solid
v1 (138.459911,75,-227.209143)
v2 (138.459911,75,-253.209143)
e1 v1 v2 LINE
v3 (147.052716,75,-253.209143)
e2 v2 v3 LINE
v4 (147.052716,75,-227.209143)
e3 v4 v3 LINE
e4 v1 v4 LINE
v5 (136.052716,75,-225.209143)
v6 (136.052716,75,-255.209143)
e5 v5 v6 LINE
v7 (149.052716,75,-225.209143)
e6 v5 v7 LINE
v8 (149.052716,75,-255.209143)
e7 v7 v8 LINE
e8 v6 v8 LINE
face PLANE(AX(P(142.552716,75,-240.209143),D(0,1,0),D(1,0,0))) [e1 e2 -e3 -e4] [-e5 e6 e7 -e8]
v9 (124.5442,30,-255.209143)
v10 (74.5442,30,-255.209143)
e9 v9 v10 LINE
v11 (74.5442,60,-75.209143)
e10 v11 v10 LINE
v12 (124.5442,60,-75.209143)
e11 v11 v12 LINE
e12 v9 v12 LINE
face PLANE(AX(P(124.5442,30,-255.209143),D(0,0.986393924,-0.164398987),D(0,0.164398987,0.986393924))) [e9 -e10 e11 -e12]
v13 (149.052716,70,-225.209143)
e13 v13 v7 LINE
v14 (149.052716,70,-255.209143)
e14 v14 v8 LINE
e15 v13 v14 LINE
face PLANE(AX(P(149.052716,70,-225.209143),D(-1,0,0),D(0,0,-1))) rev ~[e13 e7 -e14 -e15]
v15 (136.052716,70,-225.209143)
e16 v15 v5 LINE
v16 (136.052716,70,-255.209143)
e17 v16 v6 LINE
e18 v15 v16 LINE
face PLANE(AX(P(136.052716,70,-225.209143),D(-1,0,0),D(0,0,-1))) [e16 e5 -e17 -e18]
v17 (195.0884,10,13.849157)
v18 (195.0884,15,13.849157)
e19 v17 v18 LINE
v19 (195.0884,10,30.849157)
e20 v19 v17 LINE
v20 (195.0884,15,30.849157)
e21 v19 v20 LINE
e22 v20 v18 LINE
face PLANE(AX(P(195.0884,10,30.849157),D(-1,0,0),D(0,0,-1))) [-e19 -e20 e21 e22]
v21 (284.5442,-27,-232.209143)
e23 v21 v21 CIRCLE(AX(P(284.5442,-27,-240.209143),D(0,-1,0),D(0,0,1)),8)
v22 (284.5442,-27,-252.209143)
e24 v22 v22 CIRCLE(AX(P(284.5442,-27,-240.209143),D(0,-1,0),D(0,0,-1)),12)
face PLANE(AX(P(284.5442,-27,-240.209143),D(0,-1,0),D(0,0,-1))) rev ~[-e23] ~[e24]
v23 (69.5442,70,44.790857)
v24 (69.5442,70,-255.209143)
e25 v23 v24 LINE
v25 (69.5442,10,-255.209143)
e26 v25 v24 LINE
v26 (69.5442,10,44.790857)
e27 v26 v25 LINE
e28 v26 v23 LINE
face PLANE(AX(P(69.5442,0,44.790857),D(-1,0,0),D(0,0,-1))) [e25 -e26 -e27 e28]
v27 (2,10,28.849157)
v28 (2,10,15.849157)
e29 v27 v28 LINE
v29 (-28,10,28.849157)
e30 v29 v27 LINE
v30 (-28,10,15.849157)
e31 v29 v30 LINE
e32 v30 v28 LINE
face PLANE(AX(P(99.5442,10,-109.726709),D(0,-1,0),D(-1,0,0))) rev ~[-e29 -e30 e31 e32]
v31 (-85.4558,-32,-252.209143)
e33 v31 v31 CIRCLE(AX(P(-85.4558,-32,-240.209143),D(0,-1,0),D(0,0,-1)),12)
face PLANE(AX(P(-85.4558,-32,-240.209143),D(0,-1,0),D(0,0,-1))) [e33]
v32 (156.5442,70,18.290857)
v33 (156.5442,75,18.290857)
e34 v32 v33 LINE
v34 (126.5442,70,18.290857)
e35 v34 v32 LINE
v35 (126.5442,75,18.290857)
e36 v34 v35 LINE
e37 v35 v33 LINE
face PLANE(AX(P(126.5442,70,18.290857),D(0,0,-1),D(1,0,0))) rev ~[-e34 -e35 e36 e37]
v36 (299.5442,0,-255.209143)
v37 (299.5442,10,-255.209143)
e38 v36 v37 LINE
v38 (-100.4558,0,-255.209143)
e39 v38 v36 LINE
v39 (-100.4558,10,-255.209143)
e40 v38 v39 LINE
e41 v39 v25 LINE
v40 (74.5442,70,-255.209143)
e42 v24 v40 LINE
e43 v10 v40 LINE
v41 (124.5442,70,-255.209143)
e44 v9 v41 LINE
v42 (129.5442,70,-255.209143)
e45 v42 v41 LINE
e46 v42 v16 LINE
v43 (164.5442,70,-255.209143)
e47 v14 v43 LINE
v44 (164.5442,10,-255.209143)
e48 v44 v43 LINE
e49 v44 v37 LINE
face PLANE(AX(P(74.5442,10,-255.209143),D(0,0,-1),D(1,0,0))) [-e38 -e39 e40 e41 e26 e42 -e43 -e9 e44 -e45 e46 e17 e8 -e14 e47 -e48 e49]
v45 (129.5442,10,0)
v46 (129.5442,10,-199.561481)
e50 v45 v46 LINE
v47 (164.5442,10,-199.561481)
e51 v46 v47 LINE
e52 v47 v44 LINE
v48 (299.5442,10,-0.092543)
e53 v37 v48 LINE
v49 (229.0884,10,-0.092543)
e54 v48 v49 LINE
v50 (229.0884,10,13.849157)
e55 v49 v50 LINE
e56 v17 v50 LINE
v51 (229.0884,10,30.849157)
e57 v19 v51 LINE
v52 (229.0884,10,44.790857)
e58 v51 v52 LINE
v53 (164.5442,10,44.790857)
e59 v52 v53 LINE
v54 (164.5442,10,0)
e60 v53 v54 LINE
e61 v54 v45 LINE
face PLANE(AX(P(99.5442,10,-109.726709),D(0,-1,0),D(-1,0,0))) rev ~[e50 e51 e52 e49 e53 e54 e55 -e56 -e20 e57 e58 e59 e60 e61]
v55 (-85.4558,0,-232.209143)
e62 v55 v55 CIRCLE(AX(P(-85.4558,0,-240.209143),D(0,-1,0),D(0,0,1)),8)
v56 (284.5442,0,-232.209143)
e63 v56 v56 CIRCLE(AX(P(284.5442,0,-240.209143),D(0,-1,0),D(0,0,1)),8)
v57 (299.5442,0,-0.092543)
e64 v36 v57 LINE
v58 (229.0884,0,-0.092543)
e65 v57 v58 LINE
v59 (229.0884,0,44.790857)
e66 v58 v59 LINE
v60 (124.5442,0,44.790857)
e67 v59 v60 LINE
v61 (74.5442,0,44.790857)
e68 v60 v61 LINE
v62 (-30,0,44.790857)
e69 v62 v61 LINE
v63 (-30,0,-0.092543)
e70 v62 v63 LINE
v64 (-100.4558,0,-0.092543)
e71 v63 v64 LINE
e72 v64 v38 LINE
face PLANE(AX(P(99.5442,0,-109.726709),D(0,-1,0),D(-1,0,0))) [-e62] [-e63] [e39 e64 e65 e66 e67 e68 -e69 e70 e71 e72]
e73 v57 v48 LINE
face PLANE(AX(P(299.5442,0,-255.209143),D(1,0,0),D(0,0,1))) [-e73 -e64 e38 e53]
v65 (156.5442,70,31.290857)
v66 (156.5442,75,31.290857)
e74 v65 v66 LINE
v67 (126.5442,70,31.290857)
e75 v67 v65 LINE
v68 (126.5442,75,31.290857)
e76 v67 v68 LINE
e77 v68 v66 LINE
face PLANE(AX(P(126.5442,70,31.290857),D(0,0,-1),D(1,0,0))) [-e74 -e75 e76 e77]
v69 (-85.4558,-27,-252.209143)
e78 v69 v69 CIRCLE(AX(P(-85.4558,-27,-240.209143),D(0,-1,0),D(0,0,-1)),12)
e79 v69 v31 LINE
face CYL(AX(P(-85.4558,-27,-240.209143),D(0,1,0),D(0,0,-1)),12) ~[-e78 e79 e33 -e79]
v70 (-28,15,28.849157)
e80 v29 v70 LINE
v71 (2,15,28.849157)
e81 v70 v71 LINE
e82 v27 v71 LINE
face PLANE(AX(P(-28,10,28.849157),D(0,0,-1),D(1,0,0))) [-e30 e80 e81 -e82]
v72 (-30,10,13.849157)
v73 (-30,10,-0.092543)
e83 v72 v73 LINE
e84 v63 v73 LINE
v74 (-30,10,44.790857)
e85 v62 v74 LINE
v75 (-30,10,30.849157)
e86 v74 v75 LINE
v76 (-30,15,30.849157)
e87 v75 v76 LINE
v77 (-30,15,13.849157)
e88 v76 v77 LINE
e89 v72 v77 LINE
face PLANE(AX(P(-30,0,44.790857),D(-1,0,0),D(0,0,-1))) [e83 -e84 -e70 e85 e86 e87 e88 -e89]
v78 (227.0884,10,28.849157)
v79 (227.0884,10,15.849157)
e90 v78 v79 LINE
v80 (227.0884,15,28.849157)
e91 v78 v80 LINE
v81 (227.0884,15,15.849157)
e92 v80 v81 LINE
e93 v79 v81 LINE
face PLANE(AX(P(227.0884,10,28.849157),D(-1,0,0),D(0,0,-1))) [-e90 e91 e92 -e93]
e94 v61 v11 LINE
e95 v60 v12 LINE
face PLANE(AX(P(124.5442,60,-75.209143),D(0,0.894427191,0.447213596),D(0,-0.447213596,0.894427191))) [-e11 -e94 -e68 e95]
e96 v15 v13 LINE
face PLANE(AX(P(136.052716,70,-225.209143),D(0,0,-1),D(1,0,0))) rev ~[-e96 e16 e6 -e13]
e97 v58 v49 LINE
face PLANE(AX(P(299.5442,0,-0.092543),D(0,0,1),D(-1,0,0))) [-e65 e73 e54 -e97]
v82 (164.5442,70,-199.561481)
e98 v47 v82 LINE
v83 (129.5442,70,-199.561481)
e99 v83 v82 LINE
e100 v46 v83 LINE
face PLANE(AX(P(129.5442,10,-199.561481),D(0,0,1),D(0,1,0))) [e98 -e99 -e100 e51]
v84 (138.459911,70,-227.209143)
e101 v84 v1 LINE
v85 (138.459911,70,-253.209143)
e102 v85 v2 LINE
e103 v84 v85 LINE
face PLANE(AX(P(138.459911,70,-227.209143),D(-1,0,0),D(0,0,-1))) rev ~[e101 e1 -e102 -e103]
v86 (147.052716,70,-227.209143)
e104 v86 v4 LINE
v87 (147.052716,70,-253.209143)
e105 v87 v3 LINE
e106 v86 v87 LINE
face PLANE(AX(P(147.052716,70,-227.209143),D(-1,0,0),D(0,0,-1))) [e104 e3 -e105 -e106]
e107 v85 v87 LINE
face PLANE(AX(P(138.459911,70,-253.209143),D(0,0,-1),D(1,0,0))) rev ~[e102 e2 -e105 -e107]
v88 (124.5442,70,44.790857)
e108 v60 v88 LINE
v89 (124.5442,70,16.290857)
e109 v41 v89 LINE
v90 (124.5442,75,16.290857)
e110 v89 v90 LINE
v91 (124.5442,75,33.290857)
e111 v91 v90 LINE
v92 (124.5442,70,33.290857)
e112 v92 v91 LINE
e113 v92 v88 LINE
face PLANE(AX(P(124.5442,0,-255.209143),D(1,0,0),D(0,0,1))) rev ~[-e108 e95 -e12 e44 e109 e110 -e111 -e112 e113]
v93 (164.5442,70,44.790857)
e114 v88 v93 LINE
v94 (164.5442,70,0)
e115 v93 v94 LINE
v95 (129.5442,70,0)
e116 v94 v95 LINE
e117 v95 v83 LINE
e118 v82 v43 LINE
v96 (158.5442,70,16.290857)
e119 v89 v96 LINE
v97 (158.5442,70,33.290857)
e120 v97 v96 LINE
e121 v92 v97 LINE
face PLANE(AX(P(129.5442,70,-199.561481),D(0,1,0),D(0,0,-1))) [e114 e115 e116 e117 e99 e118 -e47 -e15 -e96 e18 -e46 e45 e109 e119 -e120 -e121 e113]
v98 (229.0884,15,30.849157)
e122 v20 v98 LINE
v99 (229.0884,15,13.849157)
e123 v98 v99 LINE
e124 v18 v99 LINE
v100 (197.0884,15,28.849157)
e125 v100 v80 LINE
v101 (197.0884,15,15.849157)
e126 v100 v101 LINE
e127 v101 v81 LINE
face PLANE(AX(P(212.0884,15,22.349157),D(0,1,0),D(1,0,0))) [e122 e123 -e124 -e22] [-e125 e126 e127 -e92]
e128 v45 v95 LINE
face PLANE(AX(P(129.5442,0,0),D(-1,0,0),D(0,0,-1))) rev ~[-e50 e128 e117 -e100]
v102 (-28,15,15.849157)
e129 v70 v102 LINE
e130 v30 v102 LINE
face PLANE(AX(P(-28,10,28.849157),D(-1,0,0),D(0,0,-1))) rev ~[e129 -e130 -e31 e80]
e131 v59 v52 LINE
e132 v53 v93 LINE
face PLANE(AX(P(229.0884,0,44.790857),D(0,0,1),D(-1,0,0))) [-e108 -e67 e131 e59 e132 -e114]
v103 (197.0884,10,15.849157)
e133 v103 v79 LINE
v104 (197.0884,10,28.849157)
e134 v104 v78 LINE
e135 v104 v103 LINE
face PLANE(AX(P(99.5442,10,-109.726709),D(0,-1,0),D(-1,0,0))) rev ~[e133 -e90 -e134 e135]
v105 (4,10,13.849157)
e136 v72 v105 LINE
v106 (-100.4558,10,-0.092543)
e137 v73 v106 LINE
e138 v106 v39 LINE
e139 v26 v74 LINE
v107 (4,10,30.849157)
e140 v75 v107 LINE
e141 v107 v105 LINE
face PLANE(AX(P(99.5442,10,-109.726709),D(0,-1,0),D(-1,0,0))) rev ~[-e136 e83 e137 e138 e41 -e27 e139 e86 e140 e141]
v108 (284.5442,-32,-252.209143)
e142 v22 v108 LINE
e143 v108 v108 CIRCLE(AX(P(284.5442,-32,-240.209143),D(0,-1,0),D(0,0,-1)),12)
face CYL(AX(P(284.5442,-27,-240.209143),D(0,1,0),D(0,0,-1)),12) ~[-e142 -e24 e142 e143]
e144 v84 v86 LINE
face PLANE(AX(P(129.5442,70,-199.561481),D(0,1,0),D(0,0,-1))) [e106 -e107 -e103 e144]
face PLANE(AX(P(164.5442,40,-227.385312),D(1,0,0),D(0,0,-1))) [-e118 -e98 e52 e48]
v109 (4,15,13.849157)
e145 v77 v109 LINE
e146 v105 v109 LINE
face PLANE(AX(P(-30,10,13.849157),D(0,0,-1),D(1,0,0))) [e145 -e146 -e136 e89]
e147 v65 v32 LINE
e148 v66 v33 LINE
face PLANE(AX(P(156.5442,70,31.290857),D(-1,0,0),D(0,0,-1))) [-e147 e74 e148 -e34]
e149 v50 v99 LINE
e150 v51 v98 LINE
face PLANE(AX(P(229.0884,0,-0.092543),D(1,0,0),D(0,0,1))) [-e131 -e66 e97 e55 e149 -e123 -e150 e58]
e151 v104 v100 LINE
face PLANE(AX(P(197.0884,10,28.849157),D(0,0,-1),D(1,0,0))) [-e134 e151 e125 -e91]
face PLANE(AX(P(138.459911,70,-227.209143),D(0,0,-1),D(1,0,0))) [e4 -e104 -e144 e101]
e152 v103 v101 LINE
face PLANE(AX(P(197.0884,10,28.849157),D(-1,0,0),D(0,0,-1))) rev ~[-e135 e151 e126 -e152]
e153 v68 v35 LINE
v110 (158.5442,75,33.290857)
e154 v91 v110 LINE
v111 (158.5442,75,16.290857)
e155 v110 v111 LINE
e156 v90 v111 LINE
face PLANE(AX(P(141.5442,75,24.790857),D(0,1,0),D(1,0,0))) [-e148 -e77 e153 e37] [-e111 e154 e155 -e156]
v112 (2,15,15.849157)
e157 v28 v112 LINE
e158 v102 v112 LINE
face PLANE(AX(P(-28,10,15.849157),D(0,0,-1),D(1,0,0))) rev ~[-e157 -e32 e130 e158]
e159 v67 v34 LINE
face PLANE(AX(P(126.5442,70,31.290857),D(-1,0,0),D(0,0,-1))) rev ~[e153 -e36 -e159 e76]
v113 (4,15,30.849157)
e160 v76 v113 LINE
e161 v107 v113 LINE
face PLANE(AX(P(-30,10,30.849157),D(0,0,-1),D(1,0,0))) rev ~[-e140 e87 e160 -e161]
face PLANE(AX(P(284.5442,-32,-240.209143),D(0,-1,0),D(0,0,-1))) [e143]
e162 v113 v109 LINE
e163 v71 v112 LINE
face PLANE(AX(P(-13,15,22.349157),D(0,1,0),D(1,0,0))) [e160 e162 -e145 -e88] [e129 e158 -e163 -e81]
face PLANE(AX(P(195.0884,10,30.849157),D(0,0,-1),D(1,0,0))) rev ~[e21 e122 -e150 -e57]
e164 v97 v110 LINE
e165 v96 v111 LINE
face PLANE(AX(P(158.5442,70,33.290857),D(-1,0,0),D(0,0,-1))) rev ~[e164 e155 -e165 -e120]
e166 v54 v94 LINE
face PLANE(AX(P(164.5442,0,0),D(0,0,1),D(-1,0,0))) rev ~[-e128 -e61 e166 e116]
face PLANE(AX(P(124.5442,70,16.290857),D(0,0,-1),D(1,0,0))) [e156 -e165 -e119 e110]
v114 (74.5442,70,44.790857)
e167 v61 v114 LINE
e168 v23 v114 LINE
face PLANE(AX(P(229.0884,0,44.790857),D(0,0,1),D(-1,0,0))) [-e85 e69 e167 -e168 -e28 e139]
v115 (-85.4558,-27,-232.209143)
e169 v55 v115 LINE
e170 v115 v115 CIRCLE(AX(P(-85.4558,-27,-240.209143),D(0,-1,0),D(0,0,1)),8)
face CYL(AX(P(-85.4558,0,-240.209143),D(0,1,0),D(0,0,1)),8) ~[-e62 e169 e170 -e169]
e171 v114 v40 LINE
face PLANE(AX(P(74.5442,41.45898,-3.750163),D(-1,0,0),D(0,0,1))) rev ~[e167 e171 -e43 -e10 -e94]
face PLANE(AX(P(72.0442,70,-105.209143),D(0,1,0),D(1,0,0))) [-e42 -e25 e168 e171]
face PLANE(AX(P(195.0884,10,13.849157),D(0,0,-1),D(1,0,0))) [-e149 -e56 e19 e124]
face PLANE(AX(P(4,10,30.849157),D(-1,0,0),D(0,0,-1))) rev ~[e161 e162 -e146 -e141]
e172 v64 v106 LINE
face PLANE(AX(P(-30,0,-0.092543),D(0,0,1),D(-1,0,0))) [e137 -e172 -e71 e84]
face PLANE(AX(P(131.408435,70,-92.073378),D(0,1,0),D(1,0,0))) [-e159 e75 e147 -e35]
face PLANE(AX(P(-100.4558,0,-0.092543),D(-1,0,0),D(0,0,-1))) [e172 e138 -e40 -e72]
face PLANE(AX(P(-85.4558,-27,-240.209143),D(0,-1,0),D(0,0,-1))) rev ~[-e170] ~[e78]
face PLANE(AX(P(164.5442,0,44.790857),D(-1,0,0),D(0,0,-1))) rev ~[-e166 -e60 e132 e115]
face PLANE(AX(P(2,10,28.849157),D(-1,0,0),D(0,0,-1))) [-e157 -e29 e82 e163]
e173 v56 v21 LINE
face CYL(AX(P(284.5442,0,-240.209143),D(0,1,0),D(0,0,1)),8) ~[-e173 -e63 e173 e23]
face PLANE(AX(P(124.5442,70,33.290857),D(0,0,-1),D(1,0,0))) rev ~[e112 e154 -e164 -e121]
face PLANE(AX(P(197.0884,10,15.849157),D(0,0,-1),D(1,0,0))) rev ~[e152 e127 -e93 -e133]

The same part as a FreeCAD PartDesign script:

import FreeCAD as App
import Part
import Sketcher
from FreeCAD import Vector

doc = App.newDocument("Part")
params = doc.addObject("Spreadsheet::Sheet", "Params")
for row, (alias, value) in enumerate([
    ("sketch1_width", "400 mm"),
    ("pad1_length", "10 mm"),
    ("sketch2_width", "34 mm"),
    ("sketch2_width2", "30 mm"),
    ("sketch2_height", "17 mm"),
    ("sketch2_height2", "13 mm"),
    ("pad2_length", "5 mm"),
    ("sketch3_width", "50 mm"),
    ("sketch3_height", "120 mm"),
    ("pad3_length", "50 mm"),
    ("sketch4_width", "60 mm"),
    ("sketch4_height", "120 mm"),
    ("pocket1_length", "50 mm"),
    ("sketch5_width", "50 mm"),
    ("sketch5_height", "180 mm"),
    ("pad4_length", "50 mm"),
    ("sketch6_width", "30 mm"),
    ("sketch6_height", "180 mm"),
    ("sketch7_width", "5 mm"),
    ("sketch7_width2", "40 mm"),
    ("sketch7_height", "300 mm"),
    ("pad5_length", "70 mm"),
    ("sketch8_width", "34 mm"),
    ("sketch8_width2", "30 mm"),
    ("sketch8_height", "17 mm"),
    ("sketch8_height2", "13 mm"),
    ("pad6_length", "5 mm"),
    ("sketch9_width", "60 mm"),
    ("pad7_length", "35 mm"),
    ("sketch10_width", "13 mm"),
    ("sketch10_height", "30 mm"),
    ("sketch10_height2", "26 mm"),
    ("pad8_length", "5 mm"),
    ("sketch11_diameter", "16 mm"),
    ("pad9_length", "27 mm"),
    ("sketch12_diameter", "16 mm"),
    ("pad10_length", "27 mm"),
    ("sketch13_diameter", "24 mm"),
    ("pad11_length", "5 mm"),
    ("sketch14_diameter", "24 mm"),
    ("pad12_length", "5 mm"),
], start=1):
    params.set(f"A{row}", alias)
    params.set(f"B{row}", "=" + value)
    params.setAlias(f"B{row}", alias)

body = doc.addObject("PartDesign::Body", "Body")

sketch1 = body.newObject("Sketcher::SketchObject", "Sketch")
sketch1.AttachmentSupport = (doc.getObject("XZ_Plane"), [""])
sketch1.MapMode = "FlatFace"
sketch1.addGeometry([
    Part.LineSegment(Vector(300, -255, 0), Vector(-100, -255, 0)),
    Part.LineSegment(Vector(-100, -255, 0), Vector(-100, 0, 0)),
    Part.LineSegment(Vector(-100, 0, 0), Vector(-30, 0, 0)),
    Part.LineSegment(Vector(-30, 0, 0), Vector(-30, 45, 0)),
    Part.LineSegment(Vector(-30, 45, 0), Vector(229, 45, 0)),
    Part.LineSegment(Vector(229, 45, 0), Vector(229, 0, 0)),
    Part.LineSegment(Vector(229, 0, 0), Vector(300, 0, 0)),
    Part.LineSegment(Vector(300, 0, 0), Vector(300, -255, 0)),
], False)
sketch1.addConstraint([
    Sketcher.Constraint("Coincident", 0, 2, 1, 1),
    Sketcher.Constraint("Coincident", 1, 2, 2, 1),
    Sketcher.Constraint("Coincident", 2, 2, 3, 1),
    Sketcher.Constraint("Coincident", 3, 2, 4, 1),
    Sketcher.Constraint("Coincident", 4, 2, 5, 1),
    Sketcher.Constraint("Coincident", 5, 2, 6, 1),
    Sketcher.Constraint("Coincident", 6, 2, 7, 1),
    Sketcher.Constraint("Coincident", 7, 2, 0, 1),
    Sketcher.Constraint("Horizontal", 0),
    Sketcher.Constraint("Vertical", 1),
    Sketcher.Constraint("Horizontal", 2),
    Sketcher.Constraint("Vertical", 3),
    Sketcher.Constraint("Horizontal", 4),
    Sketcher.Constraint("Vertical", 5),
    Sketcher.Constraint("Horizontal", 6),
    Sketcher.Constraint("Vertical", 7),
    Sketcher.Constraint("Horizontal", 2, 2, 5, 2),
    Sketcher.Constraint("Equal", 2, 6),
    Sketcher.Constraint("DistanceX", 0, 2, 0, 1, 400.0),
    Sketcher.Constraint("DistanceX", 2, 2, -1, 1, 30.0),
    Sketcher.Constraint("DistanceY", 0, 2, 3, 2, 300.0),
    Sketcher.Constraint("DistanceX", 2, 1, 2, 2, 70.4558),
    Sketcher.Constraint("DistanceY", 1, 1, 1, 2, 255.1166),
    Sketcher.Constraint("DistanceY", 0, 2, -1, 1, 255.209143),
])
sketch1.setExpression("Constraints[18]", "Params.sketch1_width")
pad1 = body.newObject("PartDesign::Pad", "Pad")
pad1.Profile = sketch1
pad1.setExpression("Length", "Params.pad1_length")
pad1.Reversed = True

sketch2 = body.newObject("Sketcher::SketchObject", "Sketch001")
sketch2.AttachmentSupport = (doc.getObject("XZ_Plane"), [""])
sketch2.MapMode = "FlatFace"
sketch2.AttachmentOffset = App.Placement(Vector(0, 0, -10), App.Rotation())
sketch2.addGeometry([
    Part.LineSegment(Vector(-30, 14, 0), Vector(-30, 31, 0)),
    Part.LineSegment(Vector(-30, 31, 0), Vector(4, 31, 0)),
    Part.LineSegment(Vector(4, 31, 0), Vector(4, 14, 0)),
    Part.LineSegment(Vector(4, 14, 0), Vector(-30, 14, 0)),
    Part.LineSegment(Vector(2, 29, 0), Vector(-28, 29, 0)),
    Part.LineSegment(Vector(-28, 29, 0), Vector(-28, 16, 0)),
    Part.LineSegment(Vector(-28, 16, 0), Vector(2, 16, 0)),
    Part.LineSegment(Vector(2, 16, 0), Vector(2, 29, 0)),
    Part.LineSegment(Vector(195, 14, 0), Vector(195, 31, 0)),
    Part.LineSegment(Vector(195, 31, 0), Vector(229, 31, 0)),
    Part.LineSegment(Vector(229, 31, 0), Vector(229, 14, 0)),
    Part.LineSegment(Vector(229, 14, 0), Vector(195, 14, 0)),
    Part.LineSegment(Vector(227, 29, 0), Vector(197, 29, 0)),
    Part.LineSegment(Vector(197, 29, 0), Vector(197, 16, 0)),
    Part.LineSegment(Vector(197, 16, 0), Vector(227, 16, 0)),
    Part.LineSegment(Vector(227, 16, 0), Vector(227, 29, 0)),
], False)
sketch2.addConstraint([
    Sketcher.Constraint("Coincident", 0, 2, 1, 1),
    Sketcher.Constraint("Coincident", 1, 2, 2, 1),
    Sketcher.Constraint("Coincident", 2, 2, 3, 1),
    Sketcher.Constraint("Coincident", 3, 2, 0, 1),
    Sketcher.Constraint("Coincident", 4, 2, 5, 1),
    Sketcher.Constraint("Coincident", 5, 2, 6, 1),
    Sketcher.Constraint("Coincident", 6, 2, 7, 1),
    Sketcher.Constraint("Coincident", 7, 2, 4, 1),
    Sketcher.Constraint("Coincident", 8, 2, 9, 1),
    Sketcher.Constraint("Coincident", 9, 2, 10, 1),
    Sketcher.Constraint("Coincident", 10, 2, 11, 1),
    Sketcher.Constraint("Coincident", 11, 2, 8, 1),
    Sketcher.Constraint("Coincident", 12, 2, 13, 1),
    Sketcher.Constraint("Coincident", 13, 2, 14, 1),
    Sketcher.Constraint("Coincident", 14, 2, 15, 1),
    Sketcher.Constraint("Coincident", 15, 2, 12, 1),
    Sketcher.Constraint("Vertical", 0),
    Sketcher.Constraint("Horizontal", 1),
    Sketcher.Constraint("Vertical", 2),
    Sketcher.Constraint("Horizontal", 3),
    Sketcher.Constraint("Horizontal", 4),
    Sketcher.Constraint("Vertical", 5),
    Sketcher.Constraint("Horizontal", 6),
    Sketcher.Constraint("Vertical", 7),
    Sketcher.Constraint("Vertical", 8),
    Sketcher.Constraint("Horizontal", 9),
    Sketcher.Constraint("Vertical", 10),
    Sketcher.Constraint("Horizontal", 11),
    Sketcher.Constraint("Horizontal", 12),
    Sketcher.Constraint("Vertical", 13),
    Sketcher.Constraint("Horizontal", 14),
    Sketcher.Constraint("Vertical", 15),
    Sketcher.Constraint("Horizontal", 1, 2, 8, 2),
    Sketcher.Constraint("Horizontal", 3, 2, 10, 2),
    Sketcher.Constraint("Horizontal", 7, 2, 12, 2),
    Sketcher.Constraint("Horizontal", 6, 2, 13, 2),
    Sketcher.Constraint("Equal", 3, 9),
    Sketcher.Constraint("Equal", 6, 12),
    Sketcher.Constraint("DistanceX", 1, 1, 1, 2, 34.0),
    Sketcher.Constraint("DistanceX", 4, 2, 4, 1, 30.0),
    Sketcher.Constraint("DistanceY", 0, 1, 0, 2, 17.0),
    Sketcher.Constraint("DistanceY", 5, 2, 5, 1, 13.0),
    Sketcher.Constraint("DistanceX", 0, 2, -1, 1, 30.0),
    Sketcher.Constraint("DistanceX", 4, 2, -1, 1, 28.0),
    Sketcher.Constraint("DistanceY", 4, 2, 0, 2, 2.0),
    Sketcher.Constraint("DistanceX", 8, 2, 12, 2, 2.0),
    Sketcher.Constraint("DistanceX", -1, 1, 8, 2, 195.0884),
    Sketcher.Constraint("DistanceY", -1, 1, 0, 2, 30.849157),
])
sketch2.setExpression("Constraints[38]", "Params.sketch2_width")
sketch2.setExpression("Constraints[39]", "Params.sketch2_width2")
sketch2.setExpression("Constraints[40]", "Params.sketch2_height")
sketch2.setExpression("Constraints[41]", "Params.sketch2_height2")
pad2 = body.newObject("PartDesign::Pad", "Pad001")
pad2.Profile = sketch2
pad2.setExpression("Length", "Params.pad2_length")
pad2.Reversed = True

sketch3 = body.newObject("Sketcher::SketchObject", "Sketch002")
sketch3.AttachmentSupport = (doc.getObject("XZ_Plane"), [""])
sketch3.MapMode = "FlatFace"
sketch3.AttachmentOffset = App.Placement(Vector(0, 0, -10), App.Rotation())
sketch3.addGeometry([
    Part.LineSegment(Vector(75, -75, 0), Vector(75, 45, 0)),
    Part.LineSegment(Vector(75, 45, 0), Vector(125, 45, 0)),
    Part.LineSegment(Vector(125, 45, 0), Vector(125, -75, 0)),
    Part.LineSegment(Vector(125, -75, 0), Vector(75, -75, 0)),
], False)
sketch3.addConstraint([
    Sketcher.Constraint("Coincident", 0, 2, 1, 1),
    Sketcher.Constraint("Coincident", 1, 2, 2, 1),
    Sketcher.Constraint("Coincident", 2, 2, 3, 1),
    Sketcher.Constraint("Coincident", 3, 2, 0, 1),
    Sketcher.Constraint("Vertical", 0),
    Sketcher.Constraint("Horizontal", 1),
    Sketcher.Constraint("Vertical", 2),
    Sketcher.Constraint("Horizontal", 3),
    Sketcher.Constraint("DistanceX", 1, 1, 1, 2, 50.0),
    Sketcher.Constraint("DistanceY", 0, 1, 0, 2, 120.0),
    Sketcher.Constraint("DistanceX", -1, 1, 0, 2, 74.5442),
    Sketcher.Constraint("DistanceY", -1, 1, 0, 2, 44.790857),
])
sketch3.setExpression("Constraints[8]", "Params.sketch3_width")
sketch3.setExpression("Constraints[9]", "Params.sketch3_height")
pad3 = body.newObject("PartDesign::Pad", "Pad002")
pad3.Profile = sketch3
pad3.setExpression("Length", "Params.pad3_length")
pad3.Reversed = True

sketch4 = body.newObject("Sketcher::SketchObject", "Sketch003")
sketch4.AttachmentSupport = (doc.getObject("YZ_Plane"), [""])
sketch4.MapMode = "FlatFace"
sketch4.AttachmentOffset = App.Placement(Vector(0, 0, 124.5442), App.Rotation())
sketch4.addGeometry([
    Part.LineSegment(Vector(60, -75, 0), Vector(60, 45, 0)),
    Part.LineSegment(Vector(60, 45, 0), Vector(0, 45, 0)),
    Part.LineSegment(Vector(0, 45, 0), Vector(60, -75, 0)),
], False)
sketch4.addConstraint([
    Sketcher.Constraint("Coincident", 0, 2, 1, 1),
    Sketcher.Constraint("Coincident", 1, 2, 2, 1),
    Sketcher.Constraint("Coincident", 2, 2, 0, 1),
    Sketcher.Constraint("Vertical", 0),
    Sketcher.Constraint("Horizontal", 1),
    Sketcher.Constraint("PointOnObject", 1, 2, -2),
    Sketcher.Constraint("DistanceX", 1, 2, 1, 1, 60.0),
    Sketcher.Constraint("DistanceY", 0, 1, 0, 2, 120.0),
    Sketcher.Constraint("DistanceY", -1, 1, 0, 2, 44.790857),
])
sketch4.setExpression("Constraints[6]", "Params.sketch4_width")
sketch4.setExpression("Constraints[7]", "Params.sketch4_height")
pocket1 = body.newObject("PartDesign::Pocket", "Pocket")
pocket1.Profile = sketch4
pocket1.setExpression("Length", "Params.pocket1_length")

sketch5 = body.newObject("Sketcher::SketchObject", "Sketch004")
sketch5.AttachmentSupport = (doc.getObject("XZ_Plane"), [""])
sketch5.MapMode = "FlatFace"
sketch5.AttachmentOffset = App.Placement(Vector(0, 0, -10), App.Rotation())
sketch5.addGeometry([
    Part.LineSegment(Vector(75, -255, 0), Vector(75, -75, 0)),
    Part.LineSegment(Vector(75, -75, 0), Vector(125, -75, 0)),
    Part.LineSegment(Vector(125, -75, 0), Vector(125, -255, 0)),
    Part.LineSegment(Vector(125, -255, 0), Vector(75, -255, 0)),
], False)
sketch5.addConstraint([
    Sketcher.Constraint("Coincident", 0, 2, 1, 1),
    Sketcher.Constraint("Coincident", 1, 2, 2, 1),
    Sketcher.Constraint("Coincident", 2, 2, 3, 1),
    Sketcher.Constraint("Coincident", 3, 2, 0, 1),
    Sketcher.Constraint("Vertical", 0),
    Sketcher.Constraint("Horizontal", 1),
    Sketcher.Constraint("Vertical", 2),
    Sketcher.Constraint("Horizontal", 3),
    Sketcher.Constraint("DistanceX", 1, 1, 1, 2, 50.0),
    Sketcher.Constraint("DistanceY", 0, 1, 0, 2, 180.0),
    Sketcher.Constraint("DistanceX", -1, 1, 0, 2, 74.5442),
    Sketcher.Constraint("DistanceY", 0, 2, -1, 1, 75.209143),
])
sketch5.setExpression("Constraints[8]", "Params.sketch5_width")
sketch5.setExpression("Constraints[9]", "Params.sketch5_height")
pad4 = body.newObject("PartDesign::Pad", "Pad003")
pad4.Profile = sketch5
pad4.setExpression("Length", "Params.pad4_length")
pad4.Reversed = True

sketch6 = body.newObject("Sketcher::SketchObject", "Sketch005")
sketch6.AttachmentSupport = (doc.getObject("YZ_Plane"), [""])
sketch6.MapMode = "FlatFace"
sketch6.AttachmentOffset = App.Placement(Vector(0, 0, 124.5442), App.Rotation())
sketch6.addGeometry([
    Part.LineSegment(Vector(60, -255, 0), Vector(60, -75, 0)),
    Part.LineSegment(Vector(60, -75, 0), Vector(30, -255, 0)),
    Part.LineSegment(Vector(30, -255, 0), Vector(60, -255, 0)),
], False)
sketch6.addConstraint([
    Sketcher.Constraint("Coincident", 0, 2, 1, 1),
    Sketcher.Constraint("Coincident", 1, 2, 2, 1),
    Sketcher.Constraint("Coincident", 2, 2, 0, 1),
    Sketcher.Constraint("Vertical", 0),
    Sketcher.Constraint("Horizontal", 2),
    Sketcher.Constraint("DistanceX", 2, 1, 2, 2, 30.0),
    Sketcher.Constraint("DistanceY", 0, 1, 0, 2, 180.0),
    Sketcher.Constraint("DistanceX", -1, 1, 0, 2, 60.0),
    Sketcher.Constraint("DistanceY", 0, 2, -1, 1, 75.209143),
])
sketch6.setExpression("Constraints[5]", "Params.sketch6_width")
sketch6.setExpression("Constraints[6]", "Params.sketch6_height")
pocket2 = body.newObject("PartDesign::Pocket", "Pocket001")
pocket2.Profile = sketch6
pocket2.Type = "ThroughAll"

sketch7 = body.newObject("Sketcher::SketchObject", "Sketch006")
sketch7.AttachmentSupport = (doc.getObject("XZ_Plane"), [""])
sketch7.MapMode = "FlatFace"
sketch7.addGeometry([
    Part.LineSegment(Vector(69.5, -255.2, 0), Vector(69.5, 44.8, 0)),
    Part.LineSegment(Vector(69.5, 44.8, 0), Vector(74.5, 44.8, 0)),
    Part.LineSegment(Vector(74.5, 44.8, 0), Vector(74.5, -255.2, 0)),
    Part.LineSegment(Vector(74.5, -255.2, 0), Vector(69.5, -255.2, 0)),
    Part.LineSegment(Vector(129.5, -255.2, 0), Vector(124.5, -255.2, 0)),
    Part.LineSegment(Vector(124.5, -255.2, 0), Vector(124.5, 44.8, 0)),
    Part.LineSegment(Vector(124.5, 44.8, 0), Vector(164.5, 44.8, 0)),
    Part.LineSegment(Vector(164.5, 44.8, 0), Vector(164.5, 0, 0)),
    Part.LineSegment(Vector(164.5, 0, 0), Vector(129.5, 0, 0)),
    Part.LineSegment(Vector(129.5, 0, 0), Vector(129.5, -255.2, 0)),
], False)
sketch7.addConstraint([
    Sketcher.Constraint("Coincident", 0, 2, 1, 1),
    Sketcher.Constraint("Coincident", 1, 2, 2, 1),
    Sketcher.Constraint("Coincident", 2, 2, 3, 1),
    Sketcher.Constraint("Coincident", 3, 2, 0, 1),
    Sketcher.Constraint("Coincident", 4, 2, 5, 1),
    Sketcher.Constraint("Coincident", 5, 2, 6, 1),
    Sketcher.Constraint("Coincident", 6, 2, 7, 1),
    Sketcher.Constraint("Coincident", 7, 2, 8, 1),
    Sketcher.Constraint("Coincident", 8, 2, 9, 1),
    Sketcher.Constraint("Coincident", 9, 2, 4, 1),
    Sketcher.Constraint("Vertical", 0),
    Sketcher.Constraint("Horizontal", 1),
    Sketcher.Constraint("Vertical", 2),
    Sketcher.Constraint("Horizontal", 3),
    Sketcher.Constraint("Horizontal", 4),
    Sketcher.Constraint("Vertical", 5),
    Sketcher.Constraint("Horizontal", 6),
    Sketcher.Constraint("Vertical", 7),
    Sketcher.Constraint("Horizontal", 8),
    Sketcher.Constraint("Vertical", 9),
    Sketcher.Constraint("PointOnObject", 7, 2, -1),
    Sketcher.Constraint("Horizontal", 3, 2, 4, 2),
    Sketcher.Constraint("Horizontal", 1, 2, 5, 2),
    Sketcher.Constraint("Equal", 3, 4),
    Sketcher.Constraint("DistanceX", 1, 1, 1, 2, 5.0),
    Sketcher.Constraint("DistanceX", 6, 1, 6, 2, 40.0),
    Sketcher.Constraint("DistanceY", 0, 1, 0, 2, 300.0),
    Sketcher.Constraint("DistanceX", 2, 2, 4, 2, 50.0),
    Sketcher.Constraint("DistanceX", -1, 1, 0, 2, 69.5442),
    Sketcher.Constraint("DistanceY", 7, 2, 7, 1, 44.790857),
])
sketch7.setExpression("Constraints[24]", "Params.sketch7_width")
sketch7.setExpression("Constraints[25]", "Params.sketch7_width2")
sketch7.setExpression("Constraints[26]", "Params.sketch7_height")
pad5 = body.newObject("PartDesign::Pad", "Pad004")
pad5.Profile = sketch7
pad5.setExpression("Length", "Params.pad5_length")
pad5.Reversed = True

sketch8 = body.newObject("Sketcher::SketchObject", "Sketch007")
sketch8.AttachmentSupport = (doc.getObject("XZ_Plane"), [""])
sketch8.MapMode = "FlatFace"
sketch8.AttachmentOffset = App.Placement(Vector(0, 0, -70), App.Rotation())
sketch8.addGeometry([
    Part.LineSegment(Vector(125, 16, 0), Vector(125, 33, 0)),
    Part.LineSegment(Vector(125, 33, 0), Vector(159, 33, 0)),
    Part.LineSegment(Vector(159, 33, 0), Vector(159, 16, 0)),
    Part.LineSegment(Vector(159, 16, 0), Vector(125, 16, 0)),
    Part.LineSegment(Vector(157, 31, 0), Vector(127, 31, 0)),
    Part.LineSegment(Vector(127, 31, 0), Vector(127, 18, 0)),
    Part.LineSegment(Vector(127, 18, 0), Vector(157, 18, 0)),
    Part.LineSegment(Vector(157, 18, 0), Vector(157, 31, 0)),
], False)
sketch8.addConstraint([
    Sketcher.Constraint("Coincident", 0, 2, 1, 1),
    Sketcher.Constraint("Coincident", 1, 2, 2, 1),
    Sketcher.Constraint("Coincident", 2, 2, 3, 1),
    Sketcher.Constraint("Coincident", 3, 2, 0, 1),
    Sketcher.Constraint("Coincident", 4, 2, 5, 1),
    Sketcher.Constraint("Coincident", 5, 2, 6, 1),
    Sketcher.Constraint("Coincident", 6, 2, 7, 1),
    Sketcher.Constraint("Coincident", 7, 2, 4, 1),
    Sketcher.Constraint("Vertical", 0),
    Sketcher.Constraint("Horizontal", 1),
    Sketcher.Constraint("Vertical", 2),
    Sketcher.Constraint("Horizontal", 3),
    Sketcher.Constraint("Horizontal", 4),
    Sketcher.Constraint("Vertical", 5),
    Sketcher.Constraint("Horizontal", 6),
    Sketcher.Constraint("Vertical", 7),
    Sketcher.Constraint("DistanceX", 1, 1, 1, 2, 34.0),
    Sketcher.Constraint("DistanceX", 4, 2, 4, 1, 30.0),
    Sketcher.Constraint("DistanceY", 0, 1, 0, 2, 17.0),
    Sketcher.Constraint("DistanceY", 5, 2, 5, 1, 13.0),
    Sketcher.Constraint("DistanceX", 0, 2, 4, 2, 2.0),
    Sketcher.Constraint("DistanceY", 4, 2, 0, 2, 2.0),
    Sketcher.Constraint("DistanceX", -1, 1, 0, 2, 124.5442),
    Sketcher.Constraint("DistanceY", -1, 1, 0, 2, 33.290857),
])
sketch8.setExpression("Constraints[16]", "Params.sketch8_width")
sketch8.setExpression("Constraints[17]", "Params.sketch8_width2")
sketch8.setExpression("Constraints[18]", "Params.sketch8_height")
sketch8.setExpression("Constraints[19]", "Params.sketch8_height2")
pad6 = body.newObject("PartDesign::Pad", "Pad005")
pad6.Profile = sketch8
pad6.setExpression("Length", "Params.pad6_length")
pad6.Reversed = True

sketch9 = body.newObject("Sketcher::SketchObject", "Sketch008")
sketch9.AttachmentSupport = (doc.getObject("YZ_Plane"), [""])
sketch9.MapMode = "FlatFace"
sketch9.AttachmentOffset = App.Placement(Vector(0, 0, 129.5442), App.Rotation())
sketch9.addGeometry([
    Part.LineSegment(Vector(70, -200, 0), Vector(10, -200, 0)),
    Part.LineSegment(Vector(10, -200, 0), Vector(10, -255, 0)),
    Part.LineSegment(Vector(10, -255, 0), Vector(70, -255, 0)),
    Part.LineSegment(Vector(70, -255, 0), Vector(70, -200, 0)),
], False)
sketch9.addConstraint([
    Sketcher.Constraint("Coincident", 0, 2, 1, 1),
    Sketcher.Constraint("Coincident", 1, 2, 2, 1),
    Sketcher.Constraint("Coincident", 2, 2, 3, 1),
    Sketcher.Constraint("Coincident", 3, 2, 0, 1),
    Sketcher.Constraint("Horizontal", 0),
    Sketcher.Constraint("Vertical", 1),
    Sketcher.Constraint("Horizontal", 2),
    Sketcher.Constraint("Vertical", 3),
    Sketcher.Constraint("DistanceX", 0, 2, 0, 1, 60.0),
    Sketcher.Constraint("DistanceX", -1, 1, 0, 2, 10.0),
    Sketcher.Constraint("DistanceY", 1, 2, 1, 1, 55.647663),
    Sketcher.Constraint("DistanceY", 0, 2, -1, 1, 199.561481),
])
sketch9.setExpression("Constraints[8]", "Params.sketch9_width")
pad7 = body.newObject("PartDesign::Pad", "Pad006")
pad7.Profile = sketch9
pad7.setExpression("Length", "Params.pad7_length")

sketch10 = body.newObject("Sketcher::SketchObject", "Sketch009")
sketch10.AttachmentSupport = (doc.getObject("XZ_Plane"), [""])
sketch10.MapMode = "FlatFace"
sketch10.AttachmentOffset = App.Placement(Vector(0, 0, -70), App.Rotation())
sketch10.addGeometry([
    Part.LineSegment(Vector(136, -255, 0), Vector(136, -225, 0)),
    Part.LineSegment(Vector(136, -225, 0), Vector(149, -225, 0)),
    Part.LineSegment(Vector(149, -225, 0), Vector(149, -255, 0)),
    Part.LineSegment(Vector(149, -255, 0), Vector(136, -255, 0)),
    Part.LineSegment(Vector(147, -227, 0), Vector(138, -227, 0)),
    Part.LineSegment(Vector(138, -227, 0), Vector(138, -253, 0)),
    Part.LineSegment(Vector(138, -253, 0), Vector(147, -253, 0)),
    Part.LineSegment(Vector(147, -253, 0), Vector(147, -227, 0)),
], False)
sketch10.addConstraint([
    Sketcher.Constraint("Coincident", 0, 2, 1, 1),
    Sketcher.Constraint("Coincident", 1, 2, 2, 1),
    Sketcher.Constraint("Coincident", 2, 2, 3, 1),
    Sketcher.Constraint("Coincident", 3, 2, 0, 1),
    Sketcher.Constraint("Coincident", 4, 2, 5, 1),
    Sketcher.Constraint("Coincident", 5, 2, 6, 1),
    Sketcher.Constraint("Coincident", 6, 2, 7, 1),
    Sketcher.Constraint("Coincident", 7, 2, 4, 1),
    Sketcher.Constraint("Vertical", 0),
    Sketcher.Constraint("Horizontal", 1),
    Sketcher.Constraint("Vertical", 2),
    Sketcher.Constraint("Horizontal", 3),
    Sketcher.Constraint("Horizontal", 4),
    Sketcher.Constraint("Vertical", 5),
    Sketcher.Constraint("Horizontal", 6),
    Sketcher.Constraint("Vertical", 7),
    Sketcher.Constraint("DistanceX", 1, 1, 1, 2, 13.0),
    Sketcher.Constraint("DistanceY", 0, 1, 0, 2, 30.0),
    Sketcher.Constraint("DistanceY", 5, 2, 5, 1, 26.0),
    Sketcher.Constraint("DistanceY", 4, 2, 0, 2, 2.0),
    Sketcher.Constraint("DistanceX", 6, 2, 2, 2, 2.0),
    Sketcher.Constraint("DistanceX", 4, 2, 4, 1, 8.592805),
    Sketcher.Constraint("DistanceX", -1, 1, 4, 2, 138.459911),
    Sketcher.Constraint("DistanceY", 0, 2, -1, 1, 225.209143),
])
sketch10.setExpression("Constraints[16]", "Params.sketch10_width")
sketch10.setExpression("Constraints[17]", "Params.sketch10_height")
sketch10.setExpression("Constraints[18]", "Params.sketch10_height2")
pad8 = body.newObject("PartDesign::Pad", "Pad007")
pad8.Profile = sketch10
pad8.setExpression("Length", "Params.pad8_length")
pad8.Reversed = True

sketch11 = body.newObject("Sketcher::SketchObject", "Sketch010")
sketch11.AttachmentSupport = (doc.getObject("XZ_Plane"), [""])
sketch11.MapMode = "FlatFace"
sketch11.addGeometry(Part.Circle(Vector(285, -240, 0), Vector(0, 0, 1), 8), False)
sketch11.addConstraint([
    Sketcher.Constraint("Diameter", 0, 16.0),
    Sketcher.Constraint("DistanceX", -1, 1, 0, 3, 284.5442),
    Sketcher.Constraint("DistanceY", 0, 3, -1, 1, 240.209143),
])
sketch11.setExpression("Constraints[0]", "Params.sketch11_diameter")
pad9 = body.newObject("PartDesign::Pad", "Pad008")
pad9.Profile = sketch11
pad9.setExpression("Length", "Params.pad9_length")

sketch12 = body.newObject("Sketcher::SketchObject", "Sketch011")
sketch12.AttachmentSupport = (doc.getObject("XZ_Plane"), [""])
sketch12.MapMode = "FlatFace"
sketch12.addGeometry(Part.Circle(Vector(-85, -240, 0), Vector(0, 0, 1), 8), False)
sketch12.addConstraint([
    Sketcher.Constraint("Diameter", 0, 16.0),
    Sketcher.Constraint("DistanceX", 0, 3, -1, 1, 85.4558),
    Sketcher.Constraint("DistanceY", 0, 3, -1, 1, 240.209143),
])
sketch12.setExpression("Constraints[0]", "Params.sketch12_diameter")
pad10 = body.newObject("PartDesign::Pad", "Pad009")
pad10.Profile = sketch12
pad10.setExpression("Length", "Params.pad10_length")

sketch13 = body.newObject("Sketcher::SketchObject", "Sketch012")
sketch13.AttachmentSupport = (doc.getObject("XZ_Plane"), [""])
sketch13.MapMode = "FlatFace"
sketch13.AttachmentOffset = App.Placement(Vector(0, 0, 27), App.Rotation())
sketch13.addGeometry(Part.Circle(Vector(285, -240, 0), Vector(0, 0, 1), 12), False)
sketch13.addConstraint([
    Sketcher.Constraint("Diameter", 0, 24.0),
    Sketcher.Constraint("DistanceX", -1, 1, 0, 3, 284.5442),
    Sketcher.Constraint("DistanceY", 0, 3, -1, 1, 240.209143),
])
sketch13.setExpression("Constraints[0]", "Params.sketch13_diameter")
pad11 = body.newObject("PartDesign::Pad", "Pad010")
pad11.Profile = sketch13
pad11.setExpression("Length", "Params.pad11_length")

sketch14 = body.newObject("Sketcher::SketchObject", "Sketch013")
sketch14.AttachmentSupport = (doc.getObject("XZ_Plane"), [""])
sketch14.MapMode = "FlatFace"
sketch14.AttachmentOffset = App.Placement(Vector(0, 0, 27), App.Rotation())
sketch14.addGeometry(Part.Circle(Vector(-85, -240, 0), Vector(0, 0, 1), 12), False)
sketch14.addConstraint([
    Sketcher.Constraint("Diameter", 0, 24.0),
    Sketcher.Constraint("DistanceX", 0, 3, -1, 1, 85.4558),
    Sketcher.Constraint("DistanceY", 0, 3, -1, 1, 240.209143),
])
sketch14.setExpression("Constraints[0]", "Params.sketch14_diameter")
pad12 = body.newObject("PartDesign::Pad", "Pad011")
pad12.Profile = sketch14
pad12.setExpression("Length", "Params.pad12_length")

doc.recompute()
